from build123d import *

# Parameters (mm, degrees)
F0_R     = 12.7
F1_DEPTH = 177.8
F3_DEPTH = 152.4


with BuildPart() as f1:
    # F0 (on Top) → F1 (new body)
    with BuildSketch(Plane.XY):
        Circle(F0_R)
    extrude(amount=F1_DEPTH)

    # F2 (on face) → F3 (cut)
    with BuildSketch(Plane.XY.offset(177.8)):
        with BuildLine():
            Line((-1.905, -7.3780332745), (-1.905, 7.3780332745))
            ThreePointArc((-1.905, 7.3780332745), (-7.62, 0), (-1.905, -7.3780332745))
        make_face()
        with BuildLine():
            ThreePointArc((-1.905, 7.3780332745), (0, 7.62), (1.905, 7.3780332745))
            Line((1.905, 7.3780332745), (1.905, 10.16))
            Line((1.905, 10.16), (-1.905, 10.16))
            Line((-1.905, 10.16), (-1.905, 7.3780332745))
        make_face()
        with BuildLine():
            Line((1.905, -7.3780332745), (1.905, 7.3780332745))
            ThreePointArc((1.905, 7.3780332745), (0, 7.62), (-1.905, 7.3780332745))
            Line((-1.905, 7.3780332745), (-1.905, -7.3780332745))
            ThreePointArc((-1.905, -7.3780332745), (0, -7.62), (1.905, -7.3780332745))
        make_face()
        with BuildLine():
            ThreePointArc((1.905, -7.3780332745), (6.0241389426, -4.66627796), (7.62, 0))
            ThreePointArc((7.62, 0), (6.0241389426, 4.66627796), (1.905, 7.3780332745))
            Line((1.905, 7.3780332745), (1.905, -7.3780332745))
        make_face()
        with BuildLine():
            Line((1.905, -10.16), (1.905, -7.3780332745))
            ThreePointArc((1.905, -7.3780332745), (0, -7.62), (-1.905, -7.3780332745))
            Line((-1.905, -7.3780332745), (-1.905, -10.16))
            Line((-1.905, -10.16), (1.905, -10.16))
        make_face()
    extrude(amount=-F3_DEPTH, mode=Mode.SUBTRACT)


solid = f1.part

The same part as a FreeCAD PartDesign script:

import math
import FreeCAD as App
import Part
import Sketcher
from FreeCAD import Vector
Q = App.Units.Quantity

doc = App.newDocument("Part")
body = doc.addObject("PartDesign::Body", "Body")

# Sketch on XY plane
sketch1 = body.newObject("Sketcher::SketchObject", "Sketch")
sketch1.AttachmentSupport = (doc.getObject("XY_Plane"), [""])
sketch1.MapMode = "FlatFace"
sketch1.addGeometry(Part.Circle(Vector(0, 0, 0), Vector(0, 0, 1), 12.7), False)
sketch1.addConstraint([
    Sketcher.Constraint("Coincident", 0, 3, -1, 1),
    Sketcher.Constraint("Diameter", 0, Q("1 in")),
])
pad1 = body.newObject("PartDesign::Pad", "Pad")
pad1.Profile = sketch1
pad1.Length = Q("7 in")

# Sketch on XY plane
sketch2 = body.newObject("Sketcher::SketchObject", "Sketch001")
sketch2.AttachmentSupport = (doc.getObject("XY_Plane"), [""])
sketch2.MapMode = "FlatFace"
sketch2.AttachmentOffset = App.Placement(Vector(0, 0, 7 * 25.4), App.Rotation())
sketch2.addGeometry([
    Part.ArcOfCircle(Part.Circle(Vector(0, 0, 0), Vector(0, 0, 1), 7.62), math.radians(104.477512), math.radians(255.522488)),  # 0
    Part.LineSegment(Vector(-1.905, -7.378033, 0), Vector(-1.905, -10.16, 0)),  # 1
    Part.LineSegment(Vector(-1.905, -10.16, 0), Vector(1.905, -10.16, 0)),  # 2
    Part.LineSegment(Vector(1.905, -10.16, 0), Vector(1.905, -7.378033, 0)),  # 3
    Part.ArcOfCircle(Part.Circle(Vector(0, 0, 0), Vector(0, 0, 1), 7.62), math.radians(-75.522488), math.radians(0)),  # 4
    Part.ArcOfCircle(Part.Circle(Vector(0, 0, 0), Vector(0, 0, 1), 7.62), math.radians(0), math.radians(75.522488)),  # 5
    Part.LineSegment(Vector(1.905, 7.378033, 0), Vector(1.905, 10.16, 0)),  # 6
    Part.LineSegment(Vector(1.905, 10.16, 0), Vector(-1.905, 10.16, 0)),  # 7
    Part.LineSegment(Vector(-1.905, 10.16, 0), Vector(-1.905, 7.378033, 0)),  # 8
], False)
sketch2.addConstraint([
    Sketcher.Constraint("Coincident", 0, 2, 1, 1),
    Sketcher.Constraint("Coincident", 1, 2, 2, 1),
    Sketcher.Constraint("Coincident", 2, 2, 3, 1),
    Sketcher.Constraint("Coincident", 3, 2, 4, 1),
    Sketcher.Constraint("Tangent", 4, 2, 5, 1),
    Sketcher.Constraint("Coincident", 5, 2, 6, 1),
    Sketcher.Constraint("Coincident", 6, 2, 7, 1),
    Sketcher.Constraint("Coincident", 7, 2, 8, 1),
    Sketcher.Constraint("Coincident", 8, 2, 0, 1),
    Sketcher.Constraint("Vertical", 1),
    Sketcher.Constraint("Horizontal", 2),
    Sketcher.Constraint("Vertical", 3),
    Sketcher.Constraint("Vertical", 6),
    Sketcher.Constraint("Horizontal", 7),
    Sketcher.Constraint("Vertical", 8),
    Sketcher.Constraint("Coincident", 0, 3, -1, 1),
    Sketcher.Constraint("Coincident", 4, 3, -1, 1),
    Sketcher.Constraint("Equal", 0, 4),
    Sketcher.Constraint("Equal", 4, 5),
    Sketcher.Constraint("Symmetric", 1, 2, 6, 2, -1, 1),
    Sketcher.Constraint("PointOnObject", 4, 2, -1),
    Sketcher.Constraint("Horizontal", 0, 2, 3, 2),
    Sketcher.Constraint("Horizontal", 5, 2, 8, 2),
    Sketcher.Constraint("Radius", 0, Q("0.3 in")),
    Sketcher.Constraint("DistanceX", 2, 1, 2, 2, Q("0.15 in")),
    Sketcher.Constraint("DistanceY", 1, 2, -1, 1, Q("0.4 in")),
])
pocket1 = body.newObject("PartDesign::Pocket", "Pocket")
pocket1.Profile = sketch2
pocket1.Length = Q("6 in")

doc.recompute()
